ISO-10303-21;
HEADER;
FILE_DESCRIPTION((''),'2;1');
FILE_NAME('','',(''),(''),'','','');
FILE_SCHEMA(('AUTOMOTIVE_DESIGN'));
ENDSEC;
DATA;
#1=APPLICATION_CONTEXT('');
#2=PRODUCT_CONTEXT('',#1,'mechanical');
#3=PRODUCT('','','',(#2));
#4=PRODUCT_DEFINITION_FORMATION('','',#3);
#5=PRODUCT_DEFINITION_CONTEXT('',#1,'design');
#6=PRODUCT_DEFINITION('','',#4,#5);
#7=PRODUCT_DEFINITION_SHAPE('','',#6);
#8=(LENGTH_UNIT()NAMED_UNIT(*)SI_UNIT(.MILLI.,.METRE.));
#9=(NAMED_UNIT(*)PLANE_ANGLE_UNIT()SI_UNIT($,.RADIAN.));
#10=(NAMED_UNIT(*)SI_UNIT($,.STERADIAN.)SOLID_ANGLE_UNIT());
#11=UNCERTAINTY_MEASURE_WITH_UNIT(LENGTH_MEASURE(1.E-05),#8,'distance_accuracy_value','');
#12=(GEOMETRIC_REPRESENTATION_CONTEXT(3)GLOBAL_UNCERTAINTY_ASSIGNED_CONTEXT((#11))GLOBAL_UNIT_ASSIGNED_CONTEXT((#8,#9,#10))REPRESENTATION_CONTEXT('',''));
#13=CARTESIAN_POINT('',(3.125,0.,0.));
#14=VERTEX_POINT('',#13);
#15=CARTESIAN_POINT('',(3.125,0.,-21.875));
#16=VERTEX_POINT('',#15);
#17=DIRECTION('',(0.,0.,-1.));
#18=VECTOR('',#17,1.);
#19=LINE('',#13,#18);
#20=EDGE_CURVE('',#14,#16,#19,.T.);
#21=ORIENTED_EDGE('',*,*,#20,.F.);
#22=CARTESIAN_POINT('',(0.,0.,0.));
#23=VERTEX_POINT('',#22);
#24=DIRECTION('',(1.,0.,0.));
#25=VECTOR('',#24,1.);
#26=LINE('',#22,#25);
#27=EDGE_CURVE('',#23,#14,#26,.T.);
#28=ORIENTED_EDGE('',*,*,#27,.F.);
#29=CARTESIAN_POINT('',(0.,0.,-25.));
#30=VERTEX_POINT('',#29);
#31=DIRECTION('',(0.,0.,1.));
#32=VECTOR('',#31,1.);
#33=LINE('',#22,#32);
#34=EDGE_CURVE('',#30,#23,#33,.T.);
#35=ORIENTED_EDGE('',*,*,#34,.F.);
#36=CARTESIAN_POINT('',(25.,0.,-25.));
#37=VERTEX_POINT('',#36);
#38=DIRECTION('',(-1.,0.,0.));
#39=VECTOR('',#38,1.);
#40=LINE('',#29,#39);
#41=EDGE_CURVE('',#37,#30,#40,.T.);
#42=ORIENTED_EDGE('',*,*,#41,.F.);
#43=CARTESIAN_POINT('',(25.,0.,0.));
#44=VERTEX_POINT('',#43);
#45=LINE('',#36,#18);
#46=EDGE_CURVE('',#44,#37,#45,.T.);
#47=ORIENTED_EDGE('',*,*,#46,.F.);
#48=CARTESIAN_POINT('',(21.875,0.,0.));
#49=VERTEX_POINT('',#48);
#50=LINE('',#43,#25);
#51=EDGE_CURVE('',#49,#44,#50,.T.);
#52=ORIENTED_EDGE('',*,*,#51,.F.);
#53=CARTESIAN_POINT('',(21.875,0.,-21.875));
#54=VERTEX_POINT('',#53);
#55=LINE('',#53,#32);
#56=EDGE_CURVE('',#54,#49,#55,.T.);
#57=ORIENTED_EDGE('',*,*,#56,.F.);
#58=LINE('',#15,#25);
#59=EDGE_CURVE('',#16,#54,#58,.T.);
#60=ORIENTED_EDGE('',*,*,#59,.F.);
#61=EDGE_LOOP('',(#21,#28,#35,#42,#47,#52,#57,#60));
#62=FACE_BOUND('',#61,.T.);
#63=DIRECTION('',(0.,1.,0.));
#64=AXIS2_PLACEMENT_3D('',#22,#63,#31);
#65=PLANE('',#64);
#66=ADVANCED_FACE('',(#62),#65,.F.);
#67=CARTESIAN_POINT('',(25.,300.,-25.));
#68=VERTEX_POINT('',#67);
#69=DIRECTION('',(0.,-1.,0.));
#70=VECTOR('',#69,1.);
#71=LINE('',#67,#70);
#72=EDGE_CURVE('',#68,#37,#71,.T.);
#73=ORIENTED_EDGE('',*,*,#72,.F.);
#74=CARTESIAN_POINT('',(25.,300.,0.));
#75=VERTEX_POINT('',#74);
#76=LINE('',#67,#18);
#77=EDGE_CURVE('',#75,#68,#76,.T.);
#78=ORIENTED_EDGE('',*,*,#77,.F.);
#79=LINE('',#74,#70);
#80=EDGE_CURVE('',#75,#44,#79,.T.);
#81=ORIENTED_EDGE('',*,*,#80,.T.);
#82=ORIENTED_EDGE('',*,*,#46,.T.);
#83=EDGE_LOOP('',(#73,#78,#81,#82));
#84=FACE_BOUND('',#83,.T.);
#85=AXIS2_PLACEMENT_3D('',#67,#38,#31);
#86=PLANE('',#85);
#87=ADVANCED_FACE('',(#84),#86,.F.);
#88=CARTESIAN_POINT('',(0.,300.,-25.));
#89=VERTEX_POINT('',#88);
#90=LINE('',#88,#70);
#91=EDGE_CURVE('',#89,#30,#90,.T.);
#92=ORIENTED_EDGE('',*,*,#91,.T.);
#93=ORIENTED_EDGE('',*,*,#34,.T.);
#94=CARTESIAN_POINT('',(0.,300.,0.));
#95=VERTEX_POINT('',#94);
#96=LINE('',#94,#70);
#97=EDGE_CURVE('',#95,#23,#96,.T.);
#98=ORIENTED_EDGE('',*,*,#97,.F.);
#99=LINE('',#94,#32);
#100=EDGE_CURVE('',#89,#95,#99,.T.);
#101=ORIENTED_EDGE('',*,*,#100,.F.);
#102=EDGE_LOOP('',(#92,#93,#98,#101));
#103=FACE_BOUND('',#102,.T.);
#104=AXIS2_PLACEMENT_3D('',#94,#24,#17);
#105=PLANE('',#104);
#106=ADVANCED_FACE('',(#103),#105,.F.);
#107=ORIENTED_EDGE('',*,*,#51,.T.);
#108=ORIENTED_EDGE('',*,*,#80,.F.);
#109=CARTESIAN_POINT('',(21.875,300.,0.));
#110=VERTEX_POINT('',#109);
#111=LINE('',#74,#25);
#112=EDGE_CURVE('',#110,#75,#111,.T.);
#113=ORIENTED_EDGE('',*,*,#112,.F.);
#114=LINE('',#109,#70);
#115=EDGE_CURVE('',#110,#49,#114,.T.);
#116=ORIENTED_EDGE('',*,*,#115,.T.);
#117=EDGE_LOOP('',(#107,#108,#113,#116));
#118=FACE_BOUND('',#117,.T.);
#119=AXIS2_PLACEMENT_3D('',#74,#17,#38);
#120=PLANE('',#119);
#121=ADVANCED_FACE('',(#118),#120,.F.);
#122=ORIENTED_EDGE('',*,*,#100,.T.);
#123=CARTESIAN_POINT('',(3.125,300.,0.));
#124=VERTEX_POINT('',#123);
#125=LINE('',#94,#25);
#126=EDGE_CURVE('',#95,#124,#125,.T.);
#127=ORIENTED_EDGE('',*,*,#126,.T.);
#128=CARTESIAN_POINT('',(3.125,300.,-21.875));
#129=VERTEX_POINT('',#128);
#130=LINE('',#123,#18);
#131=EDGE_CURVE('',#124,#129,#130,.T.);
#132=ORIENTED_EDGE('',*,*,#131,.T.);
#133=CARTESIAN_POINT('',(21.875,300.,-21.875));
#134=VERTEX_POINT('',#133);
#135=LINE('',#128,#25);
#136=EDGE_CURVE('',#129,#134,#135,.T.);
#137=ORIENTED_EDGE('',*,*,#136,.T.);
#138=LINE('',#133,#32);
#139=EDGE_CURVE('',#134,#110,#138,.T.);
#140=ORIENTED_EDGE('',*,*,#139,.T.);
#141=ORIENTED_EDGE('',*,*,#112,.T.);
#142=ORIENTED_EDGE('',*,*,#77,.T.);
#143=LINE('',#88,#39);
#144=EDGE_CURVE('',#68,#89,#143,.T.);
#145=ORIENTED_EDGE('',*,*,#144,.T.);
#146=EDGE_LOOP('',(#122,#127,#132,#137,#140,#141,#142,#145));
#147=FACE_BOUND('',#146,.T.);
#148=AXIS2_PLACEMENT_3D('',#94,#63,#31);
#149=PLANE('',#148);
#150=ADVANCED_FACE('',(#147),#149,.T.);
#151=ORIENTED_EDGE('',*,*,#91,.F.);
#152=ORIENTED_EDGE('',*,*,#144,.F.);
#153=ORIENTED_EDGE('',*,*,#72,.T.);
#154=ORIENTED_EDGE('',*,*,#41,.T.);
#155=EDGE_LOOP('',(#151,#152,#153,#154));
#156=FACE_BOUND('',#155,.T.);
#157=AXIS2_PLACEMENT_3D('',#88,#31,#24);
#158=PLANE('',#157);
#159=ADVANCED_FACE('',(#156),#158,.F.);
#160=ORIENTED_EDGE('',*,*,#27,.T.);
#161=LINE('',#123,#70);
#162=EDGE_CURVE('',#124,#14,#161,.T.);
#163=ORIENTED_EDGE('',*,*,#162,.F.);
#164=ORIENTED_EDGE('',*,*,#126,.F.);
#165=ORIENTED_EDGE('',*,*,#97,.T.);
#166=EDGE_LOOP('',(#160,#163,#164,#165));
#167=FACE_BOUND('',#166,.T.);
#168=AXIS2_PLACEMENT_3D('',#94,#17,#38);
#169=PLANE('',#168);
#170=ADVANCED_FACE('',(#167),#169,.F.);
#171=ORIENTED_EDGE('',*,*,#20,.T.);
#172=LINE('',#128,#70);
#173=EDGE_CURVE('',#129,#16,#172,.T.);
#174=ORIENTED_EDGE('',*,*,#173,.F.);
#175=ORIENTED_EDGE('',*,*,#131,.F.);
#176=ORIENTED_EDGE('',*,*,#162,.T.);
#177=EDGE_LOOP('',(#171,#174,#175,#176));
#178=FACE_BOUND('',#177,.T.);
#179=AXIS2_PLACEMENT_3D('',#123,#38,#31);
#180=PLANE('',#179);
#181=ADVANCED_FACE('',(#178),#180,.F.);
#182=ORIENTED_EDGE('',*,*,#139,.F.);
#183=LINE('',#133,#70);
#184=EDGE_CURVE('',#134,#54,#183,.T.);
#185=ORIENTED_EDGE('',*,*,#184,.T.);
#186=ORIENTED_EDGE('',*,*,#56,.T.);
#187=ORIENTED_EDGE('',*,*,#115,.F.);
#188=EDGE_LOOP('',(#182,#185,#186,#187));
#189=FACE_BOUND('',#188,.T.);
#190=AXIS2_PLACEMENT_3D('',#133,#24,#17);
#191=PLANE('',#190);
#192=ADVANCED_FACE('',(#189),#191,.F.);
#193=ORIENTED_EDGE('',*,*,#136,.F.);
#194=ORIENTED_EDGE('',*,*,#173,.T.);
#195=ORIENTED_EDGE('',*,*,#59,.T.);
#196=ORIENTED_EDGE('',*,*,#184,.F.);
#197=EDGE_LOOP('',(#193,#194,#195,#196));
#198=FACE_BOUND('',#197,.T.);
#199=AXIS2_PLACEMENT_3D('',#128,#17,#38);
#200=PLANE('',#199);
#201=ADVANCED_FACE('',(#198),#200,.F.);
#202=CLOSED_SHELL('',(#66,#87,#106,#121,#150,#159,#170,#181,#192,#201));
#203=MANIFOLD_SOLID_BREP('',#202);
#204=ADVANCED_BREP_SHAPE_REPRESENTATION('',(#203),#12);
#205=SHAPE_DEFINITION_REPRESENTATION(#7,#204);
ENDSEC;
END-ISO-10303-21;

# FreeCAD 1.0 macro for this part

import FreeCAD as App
import Part
import Sketcher


def add_polygon(sketch, points):
    """Adds a closed chain of lines whose ends are joined by coincident constraints."""
    first, n = sketch.GeometryCount, len(points)
    for a, b in zip(points, points[1:] + points[:1]):
        sketch.addGeometry(Part.LineSegment(App.Vector(*a, 0), App.Vector(*b, 0)), False)
    for i in range(n):
        sketch.addConstraint(Sketcher.Constraint("Coincident", first + i, 2, first + (i + 1) % n, 1))

doc = App.newDocument("Part")
body = doc.addObject("PartDesign::Body", "Body")

sketch1 = body.newObject("Sketcher::SketchObject", "Sketch")
sketch1.AttachmentSupport = (doc.getObject("XZ_Plane"), [""])
sketch1.MapMode = "FlatFace"
add_polygon(sketch1, [(0, -25), (0, 0), (3.1, 0), (3.1, -21.9), (21.9, -21.9), (21.9, 0), (25, 0), (25, -25)])
sketch1.addConstraint(Sketcher.Constraint("Vertical", 0))
sketch1.addConstraint(Sketcher.Constraint("Horizontal", 1))
sketch1.addConstraint(Sketcher.Constraint("Vertical", 2))
sketch1.addConstraint(Sketcher.Constraint("Horizontal", 3))
sketch1.addConstraint(Sketcher.Constraint("Vertical", 4))
sketch1.addConstraint(Sketcher.Constraint("Horizontal", 5))
sketch1.addConstraint(Sketcher.Constraint("Vertical", 6))
sketch1.addConstraint(Sketcher.Constraint("Horizontal", 7))
sketch1.addConstraint(Sketcher.Constraint("Coincident", 0, 2, -1, 1))
sketch1.addConstraint(Sketcher.Constraint("PointOnObject", 4, 2, -1))
sketch1.addConstraint(Sketcher.Constraint("Equal", 1, 5))
sketch1.addConstraint(Sketcher.Constraint("Equal", 7, 0))
sketch1.addConstraint(Sketcher.Constraint("DistanceX", 7, 2, 7, 1, 25.0))
sketch1.addConstraint(Sketcher.Constraint("DistanceX", 3, 1, 3, 2, 18.75))
sketch1.addConstraint(Sketcher.Constraint("DistanceY", 2, 2, 2, 1, 21.875))
pad1 = body.newObject("PartDesign::Pad", "Pad")
pad1.Profile = sketch1
pad1.Length = 300
pad1.Reversed = True

doc.recompute()
